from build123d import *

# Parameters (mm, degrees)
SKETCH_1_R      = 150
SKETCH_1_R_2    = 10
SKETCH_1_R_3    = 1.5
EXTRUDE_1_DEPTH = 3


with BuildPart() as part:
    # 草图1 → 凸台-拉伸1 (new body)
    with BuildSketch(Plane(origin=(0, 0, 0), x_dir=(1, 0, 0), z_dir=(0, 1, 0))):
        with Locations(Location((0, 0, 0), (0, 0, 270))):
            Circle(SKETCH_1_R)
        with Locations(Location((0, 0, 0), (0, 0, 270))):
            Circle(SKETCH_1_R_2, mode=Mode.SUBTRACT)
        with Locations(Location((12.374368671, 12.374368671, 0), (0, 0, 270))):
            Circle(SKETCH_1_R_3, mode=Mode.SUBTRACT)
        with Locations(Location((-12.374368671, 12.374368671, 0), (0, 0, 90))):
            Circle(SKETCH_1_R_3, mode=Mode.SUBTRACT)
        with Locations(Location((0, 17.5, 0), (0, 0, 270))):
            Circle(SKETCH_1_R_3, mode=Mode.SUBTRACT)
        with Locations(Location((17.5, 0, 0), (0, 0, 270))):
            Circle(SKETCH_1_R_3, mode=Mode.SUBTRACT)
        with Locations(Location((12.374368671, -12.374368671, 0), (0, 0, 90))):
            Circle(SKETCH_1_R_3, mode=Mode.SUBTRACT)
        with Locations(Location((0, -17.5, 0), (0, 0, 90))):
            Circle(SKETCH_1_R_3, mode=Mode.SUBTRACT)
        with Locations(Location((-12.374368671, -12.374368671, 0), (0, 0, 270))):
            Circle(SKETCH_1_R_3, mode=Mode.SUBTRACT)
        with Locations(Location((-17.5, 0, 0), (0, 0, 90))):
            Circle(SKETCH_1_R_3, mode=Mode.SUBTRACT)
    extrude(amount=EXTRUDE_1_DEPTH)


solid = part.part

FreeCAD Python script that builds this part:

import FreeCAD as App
import Part
import Sketcher
Q = App.Units.Quantity

doc = App.newDocument("Part")
body = doc.addObject("PartDesign::Body", "Body")

sketch1 = body.newObject("Sketcher::SketchObject", "Sketch")
sketch1.AttachmentSupport = (doc.getObject("XZ_Plane"), [""])
sketch1.MapMode = "FlatFace"
sketch1.addGeometry([
    Part.Circle(App.Vector(0, 0, 0), App.Vector(0, 0, 1), 150),
    Part.Circle(App.Vector(-12.4, -12.4, 0), App.Vector(0, 0, 1), 1.5),
    Part.Circle(App.Vector(0, -17.5, 0), App.Vector(0, 0, 1), 1.5),
    Part.Circle(App.Vector(-17.5, 0, 0), App.Vector(0, 0, 1), 1.5),
    Part.Circle(App.Vector(-12.4, 12.4, 0), App.Vector(0, 0, 1), 1.5),
    Part.Circle(App.Vector(12.4, -12.4, 0), App.Vector(0, 0, 1), 1.5),
    Part.Circle(App.Vector(17.5, 0, 0), App.Vector(0, 0, 1), 1.5),
    Part.Circle(App.Vector(0, 0, 0), App.Vector(0, 0, 1), 10),
    Part.Circle(App.Vector(0, 17.5, 0), App.Vector(0, 0, 1), 1.5),
    Part.Circle(App.Vector(12.4, 12.4, 0), App.Vector(0, 0, 1), 1.5),
], False)
sketch1.addConstraint([
    Sketcher.Constraint("Coincident", 0, 3, -1, 1),
    Sketcher.Constraint("Coincident", 7, 3, -1, 1),
    Sketcher.Constraint("Equal", 1, 2),
    Sketcher.Constraint("Equal", 2, 3),
    Sketcher.Constraint("Equal", 3, 4),
    Sketcher.Constraint("Equal", 4, 5),
    Sketcher.Constraint("Equal", 5, 6),
    Sketcher.Constraint("Equal", 6, 8),
    Sketcher.Constraint("Equal", 8, 9),
    Sketcher.Constraint("Symmetric", 4, 3, 5, 3, -1, 1),
    Sketcher.Constraint("Symmetric", 3, 3, 6, 3, -1, 1),
    Sketcher.Constraint("Symmetric", 2, 3, 8, 3, -1, 1),
    Sketcher.Constraint("Symmetric", 1, 3, 9, 3, -1, 1),
    Sketcher.Constraint("Symmetric", 1, 3, 5, 3, -2),
    Sketcher.Constraint("PointOnObject", 2, 3, -2),
    Sketcher.Constraint("PointOnObject", 3, 3, -1),
    Sketcher.Constraint("Diameter", 0, Q("300 mm")),
    Sketcher.Constraint("Diameter", 1, Q("3 mm")),
    Sketcher.Constraint("Diameter", 7, Q("20 mm")),
    Sketcher.Constraint("DistanceY", 2, 3, -1, 1, Q("17.5 mm")),
    Sketcher.Constraint("DistanceX", 3, 3, -1, 1, Q("17.5 mm")),
    Sketcher.Constraint("DistanceX", 1, 3, -1, 1, Q("12.374369 mm")),
    Sketcher.Constraint("DistanceY", 1, 3, -1, 1, Q("12.374369 mm")),
])
pad1 = body.newObject("PartDesign::Pad", "Pad")
pad1.Profile = sketch1
pad1.Length = 3
pad1.Reversed = True

doc.recompute()
